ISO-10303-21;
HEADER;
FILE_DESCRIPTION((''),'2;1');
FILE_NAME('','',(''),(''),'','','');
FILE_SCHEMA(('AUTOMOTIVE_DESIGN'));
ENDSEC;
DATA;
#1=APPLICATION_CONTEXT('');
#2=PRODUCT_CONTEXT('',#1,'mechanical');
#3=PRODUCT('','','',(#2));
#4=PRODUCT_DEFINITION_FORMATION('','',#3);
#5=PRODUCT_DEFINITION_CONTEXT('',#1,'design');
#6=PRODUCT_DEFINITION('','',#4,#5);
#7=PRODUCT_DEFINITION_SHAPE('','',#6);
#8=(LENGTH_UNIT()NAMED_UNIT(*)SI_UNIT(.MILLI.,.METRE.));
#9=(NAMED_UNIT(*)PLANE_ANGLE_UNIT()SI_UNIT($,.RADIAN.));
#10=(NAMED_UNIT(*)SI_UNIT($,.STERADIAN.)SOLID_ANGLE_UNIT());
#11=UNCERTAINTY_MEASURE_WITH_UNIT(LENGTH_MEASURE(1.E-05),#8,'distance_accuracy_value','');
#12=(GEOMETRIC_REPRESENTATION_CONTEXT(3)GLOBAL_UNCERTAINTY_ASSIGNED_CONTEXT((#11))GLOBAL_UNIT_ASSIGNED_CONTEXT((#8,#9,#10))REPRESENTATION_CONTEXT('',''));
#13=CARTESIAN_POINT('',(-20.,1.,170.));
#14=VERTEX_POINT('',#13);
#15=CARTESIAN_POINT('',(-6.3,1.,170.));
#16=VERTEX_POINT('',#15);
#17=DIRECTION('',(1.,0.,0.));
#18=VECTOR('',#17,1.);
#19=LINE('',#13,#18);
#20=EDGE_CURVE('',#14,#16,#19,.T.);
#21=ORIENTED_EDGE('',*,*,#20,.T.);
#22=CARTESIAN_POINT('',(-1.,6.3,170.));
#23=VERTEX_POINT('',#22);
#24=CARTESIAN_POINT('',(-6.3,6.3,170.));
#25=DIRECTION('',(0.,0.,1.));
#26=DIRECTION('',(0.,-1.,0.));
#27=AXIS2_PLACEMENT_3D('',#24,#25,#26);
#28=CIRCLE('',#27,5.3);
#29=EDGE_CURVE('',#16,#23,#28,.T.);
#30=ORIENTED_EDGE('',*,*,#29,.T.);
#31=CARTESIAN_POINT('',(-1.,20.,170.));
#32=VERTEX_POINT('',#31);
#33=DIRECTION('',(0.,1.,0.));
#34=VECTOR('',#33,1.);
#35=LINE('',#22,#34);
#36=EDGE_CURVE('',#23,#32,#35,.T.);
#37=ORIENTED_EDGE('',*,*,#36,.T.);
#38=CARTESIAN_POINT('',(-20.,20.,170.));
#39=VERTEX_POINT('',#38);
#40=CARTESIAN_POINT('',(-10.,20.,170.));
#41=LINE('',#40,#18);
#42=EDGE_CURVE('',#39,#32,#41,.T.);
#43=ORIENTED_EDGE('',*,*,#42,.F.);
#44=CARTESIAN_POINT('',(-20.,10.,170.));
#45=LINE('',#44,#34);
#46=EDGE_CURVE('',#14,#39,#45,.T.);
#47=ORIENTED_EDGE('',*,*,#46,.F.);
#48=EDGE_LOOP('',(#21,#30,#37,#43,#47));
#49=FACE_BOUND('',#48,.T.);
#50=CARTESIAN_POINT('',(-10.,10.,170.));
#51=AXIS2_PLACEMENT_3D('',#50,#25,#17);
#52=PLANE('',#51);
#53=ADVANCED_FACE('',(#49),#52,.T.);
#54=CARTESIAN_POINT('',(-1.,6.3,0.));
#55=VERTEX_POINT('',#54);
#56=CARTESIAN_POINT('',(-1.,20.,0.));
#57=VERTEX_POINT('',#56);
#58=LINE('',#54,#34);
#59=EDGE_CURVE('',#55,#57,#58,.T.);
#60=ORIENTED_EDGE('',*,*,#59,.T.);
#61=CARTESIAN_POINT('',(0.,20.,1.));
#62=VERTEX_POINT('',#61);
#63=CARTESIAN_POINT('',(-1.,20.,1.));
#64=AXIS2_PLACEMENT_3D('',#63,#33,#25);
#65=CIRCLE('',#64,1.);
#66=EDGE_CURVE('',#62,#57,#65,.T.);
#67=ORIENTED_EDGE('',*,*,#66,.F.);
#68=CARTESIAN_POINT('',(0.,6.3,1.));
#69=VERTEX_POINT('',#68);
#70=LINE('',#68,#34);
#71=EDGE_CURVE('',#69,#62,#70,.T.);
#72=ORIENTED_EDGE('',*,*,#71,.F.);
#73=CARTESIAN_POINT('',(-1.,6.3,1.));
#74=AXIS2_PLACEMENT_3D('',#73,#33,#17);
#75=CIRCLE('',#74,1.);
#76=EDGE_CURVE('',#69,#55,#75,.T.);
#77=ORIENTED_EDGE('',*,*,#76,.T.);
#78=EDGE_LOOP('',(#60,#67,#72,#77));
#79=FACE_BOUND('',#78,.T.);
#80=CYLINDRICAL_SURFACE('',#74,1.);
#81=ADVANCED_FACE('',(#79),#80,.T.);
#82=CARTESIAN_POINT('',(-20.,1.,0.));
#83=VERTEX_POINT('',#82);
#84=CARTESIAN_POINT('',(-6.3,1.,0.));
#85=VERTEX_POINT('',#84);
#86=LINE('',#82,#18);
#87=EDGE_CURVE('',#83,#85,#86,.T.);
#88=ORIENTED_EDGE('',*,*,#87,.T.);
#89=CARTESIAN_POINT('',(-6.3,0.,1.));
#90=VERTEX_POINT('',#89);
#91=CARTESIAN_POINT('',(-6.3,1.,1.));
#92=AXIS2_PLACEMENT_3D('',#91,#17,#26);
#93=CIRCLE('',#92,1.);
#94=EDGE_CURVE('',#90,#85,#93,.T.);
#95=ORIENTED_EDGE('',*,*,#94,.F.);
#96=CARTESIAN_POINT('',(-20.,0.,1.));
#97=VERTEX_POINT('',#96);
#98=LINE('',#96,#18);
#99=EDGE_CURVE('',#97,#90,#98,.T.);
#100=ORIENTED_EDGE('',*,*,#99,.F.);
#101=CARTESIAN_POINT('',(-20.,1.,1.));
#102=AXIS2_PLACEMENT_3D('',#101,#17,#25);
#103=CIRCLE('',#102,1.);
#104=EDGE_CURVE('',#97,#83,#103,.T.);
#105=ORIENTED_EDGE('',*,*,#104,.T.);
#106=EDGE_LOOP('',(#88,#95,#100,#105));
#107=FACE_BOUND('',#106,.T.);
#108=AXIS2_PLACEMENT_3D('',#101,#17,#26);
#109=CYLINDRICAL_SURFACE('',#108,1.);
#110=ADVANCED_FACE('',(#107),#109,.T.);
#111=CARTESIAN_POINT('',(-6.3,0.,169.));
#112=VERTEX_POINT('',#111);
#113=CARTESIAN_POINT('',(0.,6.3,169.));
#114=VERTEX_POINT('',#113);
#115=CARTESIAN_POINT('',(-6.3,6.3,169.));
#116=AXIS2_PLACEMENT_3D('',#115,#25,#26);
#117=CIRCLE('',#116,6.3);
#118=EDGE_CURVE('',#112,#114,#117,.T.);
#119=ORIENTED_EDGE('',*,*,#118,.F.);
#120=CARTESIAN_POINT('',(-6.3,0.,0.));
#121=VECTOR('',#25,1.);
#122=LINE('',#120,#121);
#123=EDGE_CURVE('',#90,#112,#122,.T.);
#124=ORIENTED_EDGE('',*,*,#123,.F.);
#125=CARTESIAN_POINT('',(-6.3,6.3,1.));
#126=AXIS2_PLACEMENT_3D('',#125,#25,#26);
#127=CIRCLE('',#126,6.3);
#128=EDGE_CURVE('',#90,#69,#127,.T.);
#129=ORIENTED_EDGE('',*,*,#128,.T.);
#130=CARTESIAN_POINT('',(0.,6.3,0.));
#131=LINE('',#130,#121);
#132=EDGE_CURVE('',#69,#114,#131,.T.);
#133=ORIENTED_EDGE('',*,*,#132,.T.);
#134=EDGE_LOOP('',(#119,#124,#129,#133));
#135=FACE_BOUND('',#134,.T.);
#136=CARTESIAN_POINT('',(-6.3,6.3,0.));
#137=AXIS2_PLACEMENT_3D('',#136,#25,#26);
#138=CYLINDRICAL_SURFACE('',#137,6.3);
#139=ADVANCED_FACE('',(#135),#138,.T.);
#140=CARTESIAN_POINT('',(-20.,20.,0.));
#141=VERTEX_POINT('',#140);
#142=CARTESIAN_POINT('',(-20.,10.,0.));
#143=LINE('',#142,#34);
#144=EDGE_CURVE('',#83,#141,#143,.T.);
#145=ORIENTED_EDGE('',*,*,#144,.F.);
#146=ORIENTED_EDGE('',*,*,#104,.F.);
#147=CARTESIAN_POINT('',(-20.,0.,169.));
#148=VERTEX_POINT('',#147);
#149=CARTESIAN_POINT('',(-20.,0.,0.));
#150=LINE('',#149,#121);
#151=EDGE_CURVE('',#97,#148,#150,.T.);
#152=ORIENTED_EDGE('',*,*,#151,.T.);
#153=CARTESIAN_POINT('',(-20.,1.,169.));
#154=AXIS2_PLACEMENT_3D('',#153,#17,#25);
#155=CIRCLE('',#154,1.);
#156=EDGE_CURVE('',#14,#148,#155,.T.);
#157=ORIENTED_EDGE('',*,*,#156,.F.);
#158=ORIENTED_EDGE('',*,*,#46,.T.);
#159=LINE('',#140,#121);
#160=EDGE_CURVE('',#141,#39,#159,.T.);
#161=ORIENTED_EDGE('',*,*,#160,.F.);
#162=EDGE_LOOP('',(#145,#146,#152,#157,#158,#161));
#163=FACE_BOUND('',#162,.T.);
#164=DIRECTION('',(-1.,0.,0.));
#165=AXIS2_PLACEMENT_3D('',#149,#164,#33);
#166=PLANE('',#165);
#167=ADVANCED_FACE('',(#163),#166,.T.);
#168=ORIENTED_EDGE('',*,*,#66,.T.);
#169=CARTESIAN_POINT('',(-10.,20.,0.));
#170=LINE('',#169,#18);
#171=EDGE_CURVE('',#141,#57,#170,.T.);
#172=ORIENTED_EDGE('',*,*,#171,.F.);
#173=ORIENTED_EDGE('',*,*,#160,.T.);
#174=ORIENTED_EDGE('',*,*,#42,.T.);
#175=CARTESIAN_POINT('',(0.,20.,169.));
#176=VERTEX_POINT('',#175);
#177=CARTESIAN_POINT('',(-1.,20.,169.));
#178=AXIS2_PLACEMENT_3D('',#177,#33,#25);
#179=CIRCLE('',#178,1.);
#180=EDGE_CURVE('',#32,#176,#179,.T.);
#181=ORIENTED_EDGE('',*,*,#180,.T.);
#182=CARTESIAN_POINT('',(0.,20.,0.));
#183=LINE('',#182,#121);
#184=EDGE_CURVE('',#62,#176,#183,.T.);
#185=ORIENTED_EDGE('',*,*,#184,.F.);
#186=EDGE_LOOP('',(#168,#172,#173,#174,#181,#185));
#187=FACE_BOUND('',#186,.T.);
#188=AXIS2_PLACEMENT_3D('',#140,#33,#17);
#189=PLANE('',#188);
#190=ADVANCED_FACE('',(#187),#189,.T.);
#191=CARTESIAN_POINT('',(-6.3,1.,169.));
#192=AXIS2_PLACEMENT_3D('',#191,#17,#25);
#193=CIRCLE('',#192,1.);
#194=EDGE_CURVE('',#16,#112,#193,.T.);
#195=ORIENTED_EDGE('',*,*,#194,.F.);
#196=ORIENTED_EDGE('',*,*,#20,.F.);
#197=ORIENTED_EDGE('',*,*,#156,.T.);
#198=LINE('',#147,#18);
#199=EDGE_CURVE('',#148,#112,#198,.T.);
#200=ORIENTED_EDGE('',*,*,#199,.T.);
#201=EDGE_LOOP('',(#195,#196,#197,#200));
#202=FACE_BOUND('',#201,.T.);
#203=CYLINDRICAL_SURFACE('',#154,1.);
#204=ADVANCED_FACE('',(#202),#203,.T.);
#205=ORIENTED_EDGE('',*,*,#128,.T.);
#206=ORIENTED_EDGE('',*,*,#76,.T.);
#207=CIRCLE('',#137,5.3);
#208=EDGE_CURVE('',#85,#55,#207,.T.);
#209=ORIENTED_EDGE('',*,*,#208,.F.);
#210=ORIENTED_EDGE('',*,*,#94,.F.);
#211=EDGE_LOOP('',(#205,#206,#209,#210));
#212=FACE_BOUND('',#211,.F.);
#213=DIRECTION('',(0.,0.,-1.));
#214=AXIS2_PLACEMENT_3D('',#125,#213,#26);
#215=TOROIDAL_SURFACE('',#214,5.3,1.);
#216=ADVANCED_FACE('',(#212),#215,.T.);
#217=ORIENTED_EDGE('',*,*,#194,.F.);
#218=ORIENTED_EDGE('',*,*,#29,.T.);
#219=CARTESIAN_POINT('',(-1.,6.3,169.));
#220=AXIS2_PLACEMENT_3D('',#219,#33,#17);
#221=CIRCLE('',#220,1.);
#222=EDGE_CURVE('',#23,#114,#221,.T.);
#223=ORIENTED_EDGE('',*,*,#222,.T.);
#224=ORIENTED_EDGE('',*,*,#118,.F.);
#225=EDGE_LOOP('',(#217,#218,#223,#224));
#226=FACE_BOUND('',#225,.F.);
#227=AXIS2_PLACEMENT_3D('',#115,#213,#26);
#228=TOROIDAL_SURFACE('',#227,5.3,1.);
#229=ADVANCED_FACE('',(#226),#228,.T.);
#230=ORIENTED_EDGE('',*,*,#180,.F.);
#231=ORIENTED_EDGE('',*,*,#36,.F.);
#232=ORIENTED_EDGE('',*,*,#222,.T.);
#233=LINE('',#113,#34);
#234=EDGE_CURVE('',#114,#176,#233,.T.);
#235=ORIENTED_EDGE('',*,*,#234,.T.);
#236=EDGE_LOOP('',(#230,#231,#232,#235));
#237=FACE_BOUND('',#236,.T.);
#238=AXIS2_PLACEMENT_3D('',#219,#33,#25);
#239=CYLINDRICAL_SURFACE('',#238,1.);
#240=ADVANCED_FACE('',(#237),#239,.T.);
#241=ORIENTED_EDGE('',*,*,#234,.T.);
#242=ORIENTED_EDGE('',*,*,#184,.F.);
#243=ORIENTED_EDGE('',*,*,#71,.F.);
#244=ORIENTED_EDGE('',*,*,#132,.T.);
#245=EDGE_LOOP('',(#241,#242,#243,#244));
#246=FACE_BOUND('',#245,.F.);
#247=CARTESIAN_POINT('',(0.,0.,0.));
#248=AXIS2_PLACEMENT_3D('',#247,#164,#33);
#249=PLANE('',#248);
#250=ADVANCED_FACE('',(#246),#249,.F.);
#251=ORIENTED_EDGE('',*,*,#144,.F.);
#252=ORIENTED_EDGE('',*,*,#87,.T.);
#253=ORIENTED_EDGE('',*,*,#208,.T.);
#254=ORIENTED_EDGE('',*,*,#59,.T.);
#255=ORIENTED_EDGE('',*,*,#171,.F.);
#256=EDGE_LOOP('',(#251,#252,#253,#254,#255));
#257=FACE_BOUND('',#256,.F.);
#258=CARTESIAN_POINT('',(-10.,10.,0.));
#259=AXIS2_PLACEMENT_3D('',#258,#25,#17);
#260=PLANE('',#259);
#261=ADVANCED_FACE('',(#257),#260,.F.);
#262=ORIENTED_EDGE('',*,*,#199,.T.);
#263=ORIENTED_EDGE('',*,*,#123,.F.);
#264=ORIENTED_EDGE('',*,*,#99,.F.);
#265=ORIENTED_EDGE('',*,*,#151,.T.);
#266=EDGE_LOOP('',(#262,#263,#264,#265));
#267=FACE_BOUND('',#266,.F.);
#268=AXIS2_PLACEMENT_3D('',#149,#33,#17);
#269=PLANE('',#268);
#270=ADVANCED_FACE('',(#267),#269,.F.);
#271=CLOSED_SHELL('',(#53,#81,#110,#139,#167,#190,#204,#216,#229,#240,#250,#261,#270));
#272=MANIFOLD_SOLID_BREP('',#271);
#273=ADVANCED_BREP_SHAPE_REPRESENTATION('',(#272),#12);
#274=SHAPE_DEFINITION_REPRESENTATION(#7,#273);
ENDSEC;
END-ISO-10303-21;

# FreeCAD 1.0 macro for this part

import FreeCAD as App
import Part
import Sketcher
Q = App.Units.Quantity


def edges_at(feature, points):
    """Names of the edges that pass closest to the given points."""
    edges = feature.Shape.Edges
    near = lambda p: min(range(len(edges)), key=lambda i: edges[i].distToShape(Part.Vertex(*p))[0])
    return sorted({f"Edge{near(p) + 1}" for p in points})

doc = App.newDocument("Part")
params = doc.addObject("Spreadsheet::Sheet", "Params")
for row, (alias, value) in enumerate([
    ("sketch1_width", "20 mm"),
    ("pad1_length", "170 mm"),
    ("fillet_radius", "6.3 mm"),
    ("fillet2_radius", "1 mm"),
    ("fillet3_radius", "1 mm"),
], start=1):
    params.set(f"A{row}", alias)
    params.set(f"B{row}", "=" + value)
    params.setAlias(f"B{row}", alias)

body = doc.addObject("PartDesign::Body", "Body")

sketch1 = body.newObject("Sketcher::SketchObject", "Sketch")
sketch1.AttachmentSupport = (doc.getObject("XY_Plane"), [""])
sketch1.MapMode = "FlatFace"
sketch1.addGeometry(Part.LineSegment(App.Vector(-20, 20, 0), App.Vector(-20, 0, 0)), False)
sketch1.addGeometry(Part.LineSegment(App.Vector(-20, 0, 0), App.Vector(0, 0, 0)), False)
sketch1.addGeometry(Part.LineSegment(App.Vector(0, 0, 0), App.Vector(0, 20, 0)), False)
sketch1.addGeometry(Part.LineSegment(App.Vector(0, 20, 0), App.Vector(-20, 20, 0)), False)
sketch1.addConstraint(Sketcher.Constraint("Coincident", 0, 2, 1, 1))
sketch1.addConstraint(Sketcher.Constraint("Coincident", 1, 2, 2, 1))
sketch1.addConstraint(Sketcher.Constraint("Coincident", 2, 2, 3, 1))
sketch1.addConstraint(Sketcher.Constraint("Coincident", 3, 2, 0, 1))
sketch1.addConstraint(Sketcher.Constraint("Vertical", 0))
sketch1.addConstraint(Sketcher.Constraint("Horizontal", 1))
sketch1.addConstraint(Sketcher.Constraint("Vertical", 2))
sketch1.addConstraint(Sketcher.Constraint("Horizontal", 3))
sketch1.addConstraint(Sketcher.Constraint("Coincident", 1, 2, -1, 1))
sketch1.addConstraint(Sketcher.Constraint("Equal", 3, 0))
sketch1.addConstraint(Sketcher.Constraint("DistanceX", 1, 1, 1, 2, Q("20 mm")))
sketch1.setExpression("Constraints[10]", "Params.sketch1_width")
pad1 = body.newObject("PartDesign::Pad", "Pad")
pad1.Profile = sketch1
pad1.setExpression("Length", "Params.pad1_length")
doc.recompute()

fillet = body.newObject("PartDesign::Fillet", "Fillet")
fillet.Base = (pad1, edges_at(pad1, [(0, 0, 85)]))
fillet.setExpression("Radius", "Params.fillet_radius")
doc.recompute()

fillet2 = body.newObject("PartDesign::Fillet", "Fillet001")
fillet2.Base = (fillet, edges_at(fillet, [(0, 13.15, 170)]))
fillet2.setExpression("Radius", "Params.fillet2_radius")
doc.recompute()

fillet3 = body.newObject("PartDesign::Fillet", "Fillet002")
fillet3.Base = (fillet2, edges_at(fillet2, [(-1.845, 1.845, 0)]))
fillet3.setExpression("Radius", "Params.fillet3_radius")

doc.recompute()
